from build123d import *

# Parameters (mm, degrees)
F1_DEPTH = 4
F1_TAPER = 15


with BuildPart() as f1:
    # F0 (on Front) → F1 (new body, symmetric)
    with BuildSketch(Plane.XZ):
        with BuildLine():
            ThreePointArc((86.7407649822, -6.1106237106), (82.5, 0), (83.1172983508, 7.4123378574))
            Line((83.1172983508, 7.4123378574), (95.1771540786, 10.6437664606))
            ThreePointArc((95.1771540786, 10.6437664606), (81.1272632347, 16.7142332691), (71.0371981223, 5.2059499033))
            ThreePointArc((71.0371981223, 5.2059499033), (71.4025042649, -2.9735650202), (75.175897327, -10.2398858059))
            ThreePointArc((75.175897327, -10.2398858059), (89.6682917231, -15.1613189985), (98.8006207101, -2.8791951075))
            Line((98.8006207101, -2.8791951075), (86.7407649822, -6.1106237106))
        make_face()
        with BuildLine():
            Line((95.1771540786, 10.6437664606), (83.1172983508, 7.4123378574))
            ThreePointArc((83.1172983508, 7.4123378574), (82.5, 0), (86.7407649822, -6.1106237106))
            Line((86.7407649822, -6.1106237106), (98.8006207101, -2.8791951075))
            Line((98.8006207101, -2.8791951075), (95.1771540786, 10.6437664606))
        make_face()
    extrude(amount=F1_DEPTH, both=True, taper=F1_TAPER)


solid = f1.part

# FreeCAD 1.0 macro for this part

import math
import FreeCAD as App
import Part
import Sketcher
Q = App.Units.Quantity

doc = App.newDocument("Part")
body = doc.addObject("PartDesign::Body", "Body")

# Sketch on XZ plane
sketch1 = doc.addObject("Sketcher::SketchObject", "Sketch")
body.addObject(sketch1)
sketch1.AttachmentSupport = (doc.XZ_Plane, [""])
sketch1.MapMode = "FlatFace"
sketch1.addGeometry(Part.ArcOfCircle(Part.Circle(App.Vector(83.984085, 4.032019, 0), App.Vector(0, 0, 1), 13), math.radians(30.570354), math.radians(174.818995)), False)
sketch1.addGeometry(Part.ArcOfCircle(Part.Circle(App.Vector(89.755095, 1.943997, 0), App.Vector(0, 0, 1), 19), math.radians(170.114387), math.radians(219.885613)), False)
sketch1.addGeometry(Part.ArcOfCircle(Part.Circle(App.Vector(85.801265, -2.749788, 0), App.Vector(0, 0, 1), 13), math.radians(-144.818995), math.radians(-0.570354)), False)
sketch1.addGeometry(Part.LineSegment(App.Vector(98.800621, -2.879195, 0), App.Vector(95.177154, 10.643766, 0)), False)
sketch1.addConstraint(Sketcher.Constraint("Coincident", 0, 2, 1, 1))
sketch1.addConstraint(Sketcher.Constraint("Coincident", 1, 2, 2, 1))
sketch1.addConstraint(Sketcher.Constraint("Coincident", 2, 2, 3, 1))
sketch1.addConstraint(Sketcher.Constraint("Coincident", 3, 2, 0, 1))
sketch1.addConstraint(Sketcher.Constraint("Equal", 0, 2))
sketch1.addConstraint(Sketcher.Constraint("Radius", 0, 13.0))
sketch1.addConstraint(Sketcher.Constraint("Radius", 1, 19.0))
sketch1.addConstraint(Sketcher.Constraint("Angle", 3, Q("105 deg")))
sketch1.addConstraint(Sketcher.Constraint("Distance", 3, 14.0))
sketch1.addConstraint(Sketcher.Constraint("DistanceX", -1, 1, 0, 2, 71.037198))
sketch1.addConstraint(Sketcher.Constraint("DistanceX", 0, 2, 1, 2, 4.138699))
sketch1.addConstraint(Sketcher.Constraint("DistanceY", -1, 1, 0, 3, 4.032019))
sketch1.addConstraint(Sketcher.Constraint("DistanceY", -1, 1, 0, 2, 5.20595))
sketch1.addConstraint(Sketcher.Constraint("DistanceX", -1, 1, 2, 2, 98.800621))
sketch1.addConstraint(Sketcher.Constraint("DistanceX", 0, 3, 1, 3, 5.77101))
pad1 = doc.addObject("PartDesign::Pad", "Pad")
body.addObject(pad1)
pad1.Profile = sketch1
pad1.Length = 8
pad1.Midplane = True
pad1.TaperAngle = -15

doc.recompute()
